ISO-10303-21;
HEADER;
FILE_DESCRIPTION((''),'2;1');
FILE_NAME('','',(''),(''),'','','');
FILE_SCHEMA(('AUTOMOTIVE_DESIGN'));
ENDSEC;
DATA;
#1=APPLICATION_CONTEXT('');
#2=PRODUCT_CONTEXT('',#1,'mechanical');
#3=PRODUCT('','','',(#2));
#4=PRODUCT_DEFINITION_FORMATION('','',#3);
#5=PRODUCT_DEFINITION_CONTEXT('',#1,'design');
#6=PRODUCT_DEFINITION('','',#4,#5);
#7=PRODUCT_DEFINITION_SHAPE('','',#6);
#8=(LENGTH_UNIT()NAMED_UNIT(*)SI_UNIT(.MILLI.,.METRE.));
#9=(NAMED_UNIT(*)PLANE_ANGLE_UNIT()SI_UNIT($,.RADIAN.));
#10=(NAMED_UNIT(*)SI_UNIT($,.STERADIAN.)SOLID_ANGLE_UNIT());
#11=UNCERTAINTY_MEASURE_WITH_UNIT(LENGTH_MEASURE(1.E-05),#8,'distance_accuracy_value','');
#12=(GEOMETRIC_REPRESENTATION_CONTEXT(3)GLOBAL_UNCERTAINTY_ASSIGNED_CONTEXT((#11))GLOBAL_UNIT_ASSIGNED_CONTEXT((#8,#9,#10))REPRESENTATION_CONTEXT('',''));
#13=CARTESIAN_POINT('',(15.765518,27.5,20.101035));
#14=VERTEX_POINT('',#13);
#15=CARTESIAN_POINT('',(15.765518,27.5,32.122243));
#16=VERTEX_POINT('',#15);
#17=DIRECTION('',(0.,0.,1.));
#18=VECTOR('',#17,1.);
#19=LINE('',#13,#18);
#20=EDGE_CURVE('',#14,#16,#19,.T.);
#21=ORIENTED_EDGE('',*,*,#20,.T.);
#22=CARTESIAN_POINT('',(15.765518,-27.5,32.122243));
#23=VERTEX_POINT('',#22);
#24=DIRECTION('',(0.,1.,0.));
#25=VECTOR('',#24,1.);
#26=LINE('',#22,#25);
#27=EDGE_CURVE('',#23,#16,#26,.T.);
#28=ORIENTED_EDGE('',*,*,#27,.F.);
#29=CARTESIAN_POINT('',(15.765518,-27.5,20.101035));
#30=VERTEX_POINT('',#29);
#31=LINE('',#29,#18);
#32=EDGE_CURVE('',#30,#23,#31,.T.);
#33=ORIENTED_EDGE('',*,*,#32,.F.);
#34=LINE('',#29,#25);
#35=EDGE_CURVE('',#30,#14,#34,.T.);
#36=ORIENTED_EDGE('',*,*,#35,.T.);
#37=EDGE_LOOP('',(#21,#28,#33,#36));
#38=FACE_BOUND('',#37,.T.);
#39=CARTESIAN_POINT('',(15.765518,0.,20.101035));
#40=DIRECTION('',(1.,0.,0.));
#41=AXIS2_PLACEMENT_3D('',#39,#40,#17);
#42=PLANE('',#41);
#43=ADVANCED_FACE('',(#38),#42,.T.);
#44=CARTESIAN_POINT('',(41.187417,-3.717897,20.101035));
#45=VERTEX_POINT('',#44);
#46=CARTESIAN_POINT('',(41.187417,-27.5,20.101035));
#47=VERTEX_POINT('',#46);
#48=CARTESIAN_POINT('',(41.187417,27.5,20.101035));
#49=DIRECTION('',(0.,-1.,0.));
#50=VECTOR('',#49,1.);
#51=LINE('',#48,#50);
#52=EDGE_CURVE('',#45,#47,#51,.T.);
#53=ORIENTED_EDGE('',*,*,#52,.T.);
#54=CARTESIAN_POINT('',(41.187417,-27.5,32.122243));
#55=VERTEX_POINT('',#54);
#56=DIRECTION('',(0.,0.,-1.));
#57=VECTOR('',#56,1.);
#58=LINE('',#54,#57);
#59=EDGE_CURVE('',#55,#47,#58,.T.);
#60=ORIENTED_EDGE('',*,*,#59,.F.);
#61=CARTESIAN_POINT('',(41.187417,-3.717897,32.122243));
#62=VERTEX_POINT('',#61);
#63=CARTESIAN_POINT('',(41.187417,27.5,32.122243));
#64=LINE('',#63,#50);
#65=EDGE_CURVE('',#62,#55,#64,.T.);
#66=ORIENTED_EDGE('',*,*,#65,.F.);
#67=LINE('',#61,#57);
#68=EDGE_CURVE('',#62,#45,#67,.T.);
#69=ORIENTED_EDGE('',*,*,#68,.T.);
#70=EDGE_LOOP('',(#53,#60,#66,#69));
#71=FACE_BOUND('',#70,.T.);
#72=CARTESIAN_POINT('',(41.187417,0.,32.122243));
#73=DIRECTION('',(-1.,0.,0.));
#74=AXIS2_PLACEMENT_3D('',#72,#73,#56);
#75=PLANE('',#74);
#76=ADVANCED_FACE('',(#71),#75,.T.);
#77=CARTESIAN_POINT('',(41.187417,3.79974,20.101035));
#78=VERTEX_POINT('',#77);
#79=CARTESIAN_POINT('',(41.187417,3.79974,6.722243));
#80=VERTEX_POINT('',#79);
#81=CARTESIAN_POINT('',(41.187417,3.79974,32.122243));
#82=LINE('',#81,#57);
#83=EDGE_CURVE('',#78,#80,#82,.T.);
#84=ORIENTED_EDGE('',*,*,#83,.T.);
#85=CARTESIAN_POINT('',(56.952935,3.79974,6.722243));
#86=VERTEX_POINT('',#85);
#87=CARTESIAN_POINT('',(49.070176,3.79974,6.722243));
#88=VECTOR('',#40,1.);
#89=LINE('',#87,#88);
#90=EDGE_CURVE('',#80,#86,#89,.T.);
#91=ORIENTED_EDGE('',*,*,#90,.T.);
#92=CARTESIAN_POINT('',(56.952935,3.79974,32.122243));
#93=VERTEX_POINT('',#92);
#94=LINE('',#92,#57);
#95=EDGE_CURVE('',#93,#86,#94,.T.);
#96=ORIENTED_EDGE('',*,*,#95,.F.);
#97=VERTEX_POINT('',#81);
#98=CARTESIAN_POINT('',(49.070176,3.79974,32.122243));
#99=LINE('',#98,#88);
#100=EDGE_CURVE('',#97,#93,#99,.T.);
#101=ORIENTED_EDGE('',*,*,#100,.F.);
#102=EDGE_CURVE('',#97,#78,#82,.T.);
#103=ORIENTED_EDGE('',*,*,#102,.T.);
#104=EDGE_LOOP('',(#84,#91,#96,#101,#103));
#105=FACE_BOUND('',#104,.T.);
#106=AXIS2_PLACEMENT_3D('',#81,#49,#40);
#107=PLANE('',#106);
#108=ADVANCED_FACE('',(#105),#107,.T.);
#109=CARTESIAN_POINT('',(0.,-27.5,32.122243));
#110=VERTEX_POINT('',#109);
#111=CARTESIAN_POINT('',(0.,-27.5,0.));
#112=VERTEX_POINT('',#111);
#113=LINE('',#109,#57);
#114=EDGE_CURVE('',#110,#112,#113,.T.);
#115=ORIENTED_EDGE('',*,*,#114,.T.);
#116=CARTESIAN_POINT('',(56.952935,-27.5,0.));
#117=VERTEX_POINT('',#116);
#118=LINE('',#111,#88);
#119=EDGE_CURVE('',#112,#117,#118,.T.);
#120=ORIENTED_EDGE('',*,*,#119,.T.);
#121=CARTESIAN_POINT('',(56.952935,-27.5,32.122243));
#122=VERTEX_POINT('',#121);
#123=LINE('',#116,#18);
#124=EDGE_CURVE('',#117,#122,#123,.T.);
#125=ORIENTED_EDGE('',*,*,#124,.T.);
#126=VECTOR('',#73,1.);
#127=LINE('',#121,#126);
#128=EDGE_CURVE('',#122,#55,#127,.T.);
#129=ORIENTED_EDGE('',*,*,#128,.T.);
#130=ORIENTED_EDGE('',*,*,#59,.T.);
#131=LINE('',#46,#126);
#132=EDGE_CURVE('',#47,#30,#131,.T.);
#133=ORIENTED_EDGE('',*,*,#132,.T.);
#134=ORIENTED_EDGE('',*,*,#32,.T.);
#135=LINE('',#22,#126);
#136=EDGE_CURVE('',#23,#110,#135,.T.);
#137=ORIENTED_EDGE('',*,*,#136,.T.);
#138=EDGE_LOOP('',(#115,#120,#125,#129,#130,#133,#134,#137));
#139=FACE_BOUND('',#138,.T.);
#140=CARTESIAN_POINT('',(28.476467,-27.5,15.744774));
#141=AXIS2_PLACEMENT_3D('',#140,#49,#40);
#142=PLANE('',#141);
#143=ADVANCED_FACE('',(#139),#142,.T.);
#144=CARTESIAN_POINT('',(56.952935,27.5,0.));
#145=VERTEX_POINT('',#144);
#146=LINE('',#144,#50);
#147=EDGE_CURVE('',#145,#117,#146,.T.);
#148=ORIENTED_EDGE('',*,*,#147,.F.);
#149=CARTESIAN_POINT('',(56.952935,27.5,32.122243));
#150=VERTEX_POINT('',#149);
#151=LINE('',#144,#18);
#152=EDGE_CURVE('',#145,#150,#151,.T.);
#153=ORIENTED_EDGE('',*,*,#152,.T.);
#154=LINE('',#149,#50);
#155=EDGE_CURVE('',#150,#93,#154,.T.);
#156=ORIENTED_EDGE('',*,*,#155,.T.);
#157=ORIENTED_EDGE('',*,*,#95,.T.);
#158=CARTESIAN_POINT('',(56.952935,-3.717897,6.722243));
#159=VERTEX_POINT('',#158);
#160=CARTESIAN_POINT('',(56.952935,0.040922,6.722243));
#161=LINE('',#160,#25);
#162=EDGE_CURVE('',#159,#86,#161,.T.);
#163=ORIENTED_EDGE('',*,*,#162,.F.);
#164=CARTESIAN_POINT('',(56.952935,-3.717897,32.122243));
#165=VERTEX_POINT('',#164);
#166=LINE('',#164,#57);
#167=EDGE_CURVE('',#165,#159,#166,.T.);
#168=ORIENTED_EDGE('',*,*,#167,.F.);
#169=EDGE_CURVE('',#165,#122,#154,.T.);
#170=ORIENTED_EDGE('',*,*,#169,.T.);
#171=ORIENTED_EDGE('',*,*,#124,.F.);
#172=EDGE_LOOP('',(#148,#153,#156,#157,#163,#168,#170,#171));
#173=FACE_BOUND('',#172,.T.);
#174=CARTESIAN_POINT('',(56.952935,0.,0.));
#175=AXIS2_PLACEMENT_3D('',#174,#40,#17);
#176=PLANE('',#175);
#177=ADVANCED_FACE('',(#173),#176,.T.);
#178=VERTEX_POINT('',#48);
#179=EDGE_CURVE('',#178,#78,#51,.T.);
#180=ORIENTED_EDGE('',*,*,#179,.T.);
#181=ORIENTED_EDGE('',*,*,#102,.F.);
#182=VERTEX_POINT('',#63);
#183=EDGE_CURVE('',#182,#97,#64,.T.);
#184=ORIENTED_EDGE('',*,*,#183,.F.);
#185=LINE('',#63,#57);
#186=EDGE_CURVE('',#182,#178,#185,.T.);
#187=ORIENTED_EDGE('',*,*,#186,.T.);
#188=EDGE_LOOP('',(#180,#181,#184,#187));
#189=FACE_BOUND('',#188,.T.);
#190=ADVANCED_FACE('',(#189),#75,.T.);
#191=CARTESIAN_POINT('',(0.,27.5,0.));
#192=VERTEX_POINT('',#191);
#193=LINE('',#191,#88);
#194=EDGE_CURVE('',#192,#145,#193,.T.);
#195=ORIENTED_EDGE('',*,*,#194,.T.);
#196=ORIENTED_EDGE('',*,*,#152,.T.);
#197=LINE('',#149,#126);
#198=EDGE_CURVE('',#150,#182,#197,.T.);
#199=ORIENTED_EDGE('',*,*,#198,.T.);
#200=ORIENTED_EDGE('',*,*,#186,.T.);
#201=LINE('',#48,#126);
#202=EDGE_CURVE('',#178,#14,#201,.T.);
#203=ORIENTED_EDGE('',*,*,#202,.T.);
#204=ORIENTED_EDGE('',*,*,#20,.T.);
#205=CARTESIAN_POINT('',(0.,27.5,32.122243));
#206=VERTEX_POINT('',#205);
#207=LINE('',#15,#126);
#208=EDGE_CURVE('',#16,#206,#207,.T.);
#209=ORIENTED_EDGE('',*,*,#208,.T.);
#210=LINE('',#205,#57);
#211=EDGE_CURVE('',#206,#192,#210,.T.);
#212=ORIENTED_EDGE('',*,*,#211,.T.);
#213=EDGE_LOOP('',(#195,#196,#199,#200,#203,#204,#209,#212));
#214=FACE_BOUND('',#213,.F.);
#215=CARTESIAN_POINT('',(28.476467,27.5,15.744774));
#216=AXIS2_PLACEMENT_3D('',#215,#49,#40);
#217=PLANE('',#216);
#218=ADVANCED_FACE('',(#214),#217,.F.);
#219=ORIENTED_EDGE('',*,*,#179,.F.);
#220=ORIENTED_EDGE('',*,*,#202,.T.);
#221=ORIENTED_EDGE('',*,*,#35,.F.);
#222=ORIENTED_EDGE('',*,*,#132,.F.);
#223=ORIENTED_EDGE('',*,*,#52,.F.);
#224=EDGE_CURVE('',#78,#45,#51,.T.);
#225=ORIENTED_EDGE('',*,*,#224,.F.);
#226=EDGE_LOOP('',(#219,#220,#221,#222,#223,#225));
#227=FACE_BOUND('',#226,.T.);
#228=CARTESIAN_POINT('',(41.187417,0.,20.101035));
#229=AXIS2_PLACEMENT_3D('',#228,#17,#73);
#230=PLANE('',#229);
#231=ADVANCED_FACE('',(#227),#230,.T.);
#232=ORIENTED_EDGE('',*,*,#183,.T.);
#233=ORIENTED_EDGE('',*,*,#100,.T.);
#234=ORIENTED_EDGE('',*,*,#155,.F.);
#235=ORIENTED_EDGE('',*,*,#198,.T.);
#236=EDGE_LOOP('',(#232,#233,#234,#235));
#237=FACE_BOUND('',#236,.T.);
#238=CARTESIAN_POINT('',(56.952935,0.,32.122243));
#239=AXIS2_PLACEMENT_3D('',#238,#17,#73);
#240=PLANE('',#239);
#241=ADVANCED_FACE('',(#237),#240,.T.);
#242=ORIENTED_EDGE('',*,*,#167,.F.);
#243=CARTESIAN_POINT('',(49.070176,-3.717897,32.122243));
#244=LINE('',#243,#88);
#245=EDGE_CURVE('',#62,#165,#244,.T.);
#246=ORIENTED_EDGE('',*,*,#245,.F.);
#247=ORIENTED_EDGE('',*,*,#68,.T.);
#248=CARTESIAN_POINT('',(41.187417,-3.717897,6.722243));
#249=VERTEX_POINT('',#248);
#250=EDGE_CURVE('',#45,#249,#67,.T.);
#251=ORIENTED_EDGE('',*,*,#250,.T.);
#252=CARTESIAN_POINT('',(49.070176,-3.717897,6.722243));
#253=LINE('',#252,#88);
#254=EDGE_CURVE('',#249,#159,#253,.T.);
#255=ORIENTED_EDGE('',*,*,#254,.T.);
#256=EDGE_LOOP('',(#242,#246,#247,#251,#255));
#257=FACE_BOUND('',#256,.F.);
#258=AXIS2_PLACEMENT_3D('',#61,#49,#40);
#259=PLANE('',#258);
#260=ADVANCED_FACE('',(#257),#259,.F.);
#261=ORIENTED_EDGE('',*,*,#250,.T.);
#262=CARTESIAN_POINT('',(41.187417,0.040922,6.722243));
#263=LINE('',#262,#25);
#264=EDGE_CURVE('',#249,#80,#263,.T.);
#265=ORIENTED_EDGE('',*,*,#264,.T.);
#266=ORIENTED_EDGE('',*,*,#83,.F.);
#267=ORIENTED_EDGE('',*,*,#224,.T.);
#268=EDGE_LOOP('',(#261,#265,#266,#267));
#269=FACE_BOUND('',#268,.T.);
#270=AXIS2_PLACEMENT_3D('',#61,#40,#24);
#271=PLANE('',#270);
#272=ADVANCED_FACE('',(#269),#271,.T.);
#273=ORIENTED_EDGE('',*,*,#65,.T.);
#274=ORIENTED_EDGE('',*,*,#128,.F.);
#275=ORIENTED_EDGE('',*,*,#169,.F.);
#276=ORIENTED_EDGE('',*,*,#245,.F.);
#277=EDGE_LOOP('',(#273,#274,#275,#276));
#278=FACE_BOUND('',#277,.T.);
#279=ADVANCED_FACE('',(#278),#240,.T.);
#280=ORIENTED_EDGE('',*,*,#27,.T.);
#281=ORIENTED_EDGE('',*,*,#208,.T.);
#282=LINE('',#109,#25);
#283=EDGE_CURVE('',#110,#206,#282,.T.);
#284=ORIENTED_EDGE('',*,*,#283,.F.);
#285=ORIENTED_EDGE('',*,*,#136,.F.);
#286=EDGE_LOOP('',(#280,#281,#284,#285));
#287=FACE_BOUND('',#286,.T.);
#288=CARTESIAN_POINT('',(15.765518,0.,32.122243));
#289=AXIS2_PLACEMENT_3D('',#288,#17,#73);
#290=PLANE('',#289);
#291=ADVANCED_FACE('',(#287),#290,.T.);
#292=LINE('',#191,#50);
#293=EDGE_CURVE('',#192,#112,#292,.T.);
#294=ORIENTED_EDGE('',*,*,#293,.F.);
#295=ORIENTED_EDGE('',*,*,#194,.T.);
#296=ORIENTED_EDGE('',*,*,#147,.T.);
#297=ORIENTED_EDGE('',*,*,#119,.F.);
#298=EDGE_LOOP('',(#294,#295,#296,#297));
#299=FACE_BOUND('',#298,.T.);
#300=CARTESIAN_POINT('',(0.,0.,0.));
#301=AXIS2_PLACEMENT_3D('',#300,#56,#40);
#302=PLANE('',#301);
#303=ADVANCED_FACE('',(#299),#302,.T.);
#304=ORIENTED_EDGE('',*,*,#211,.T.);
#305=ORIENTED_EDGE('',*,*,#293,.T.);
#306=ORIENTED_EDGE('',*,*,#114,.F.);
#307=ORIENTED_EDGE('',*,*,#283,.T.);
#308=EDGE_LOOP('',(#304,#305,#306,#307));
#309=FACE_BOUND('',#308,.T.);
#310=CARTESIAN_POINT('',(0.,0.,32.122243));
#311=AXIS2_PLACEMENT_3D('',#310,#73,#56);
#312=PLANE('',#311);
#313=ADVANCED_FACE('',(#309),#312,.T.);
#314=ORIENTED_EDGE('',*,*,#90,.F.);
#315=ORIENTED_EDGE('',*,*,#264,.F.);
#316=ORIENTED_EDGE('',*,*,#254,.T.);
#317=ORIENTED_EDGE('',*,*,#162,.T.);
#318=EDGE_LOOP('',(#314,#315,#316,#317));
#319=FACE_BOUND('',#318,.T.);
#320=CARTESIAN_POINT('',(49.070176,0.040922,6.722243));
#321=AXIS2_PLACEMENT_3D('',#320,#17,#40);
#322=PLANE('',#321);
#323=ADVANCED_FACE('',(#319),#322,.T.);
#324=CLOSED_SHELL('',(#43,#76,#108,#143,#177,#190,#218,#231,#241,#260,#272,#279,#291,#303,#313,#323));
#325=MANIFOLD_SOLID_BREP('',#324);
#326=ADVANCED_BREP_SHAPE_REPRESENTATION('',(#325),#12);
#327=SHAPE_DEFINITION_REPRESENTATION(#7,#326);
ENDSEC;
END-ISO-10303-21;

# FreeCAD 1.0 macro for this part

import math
import FreeCAD as App
import Part
import Sketcher

doc = App.newDocument("Part")
body = doc.addObject("PartDesign::Body", "Body")

# Sketch on XZ plane
sketch1 = body.newObject("Sketcher::SketchObject", "Sketch")
sketch1.AttachmentSupport = (doc.getObject("XZ_Plane"), [""])
sketch1.MapMode = "FlatFace"
sketch1.addGeometry(Part.LineSegment(App.Vector(-26.748247, -27.646495, 0), App.Vector(26.748247, -27.646495, 0)), False)
sketch1.addGeometry(Part.LineSegment(App.Vector(26.748247, -27.646495, 0), App.Vector(26.748247, 27.646495, 0)), False)
sketch1.addGeometry(Part.ArcOfCircle(Part.Circle(App.Vector(0, 27.646495, 0), App.Vector(0, 0, 1), 26.748247), math.radians(0), math.radians(180)), False)
sketch1.addGeometry(Part.LineSegment(App.Vector(-26.748247, 27.646495, 0), App.Vector(-26.748247, -27.646495, 0)), False)
sketch1.addGeometry(Part.Circle(App.Vector(0, 27.646495, 0), App.Vector(0, 0, 1), 9.415849), False)
sketch1.addConstraint(Sketcher.Constraint("Coincident", 0, 2, 1, 1))
sketch1.addConstraint(Sketcher.Constraint("Tangent", 1, 2, 2, 1))
sketch1.addConstraint(Sketcher.Constraint("Tangent", 2, 2, 3, 1))
sketch1.addConstraint(Sketcher.Constraint("Coincident", 3, 2, 0, 1))
sketch1.addConstraint(Sketcher.Constraint("Horizontal", 0))
sketch1.addConstraint(Sketcher.Constraint("Vertical", 1))
sketch1.addConstraint(Sketcher.Constraint("Vertical", 3))
sketch1.addConstraint(Sketcher.Constraint("Coincident", 4, 3, 2, 3))
sketch1.addConstraint(Sketcher.Constraint("Symmetric", 0, 2, 2, 2, -1, 1))
sketch1.addConstraint(Sketcher.Constraint("Diameter", 4, 18.831697))
sketch1.addConstraint(Sketcher.Constraint("Radius", 2, 26.748247))
sketch1.addConstraint(Sketcher.Constraint("DistanceY", 1, 1, 1, 2, 55.29299))
pad1 = body.newObject("PartDesign::Pad", "Pad")
pad1.Profile = sketch1
pad1.Length = 25.4
body2 = doc.addObject("PartDesign::Body", "Body001")

# Sketch on XZ plane
sketch2 = body2.newObject("Sketcher::SketchObject", "Sketch001")
sketch2.AttachmentSupport = (doc.getObject("XZ_Plane001"), [""])
sketch2.MapMode = "FlatFace"
sketch2.addGeometry(Part.LineSegment(App.Vector(0, 32.122243, 0), App.Vector(0, 0, 0)), False)
sketch2.addGeometry(Part.LineSegment(App.Vector(0, 0, 0), App.Vector(56.952935, 0, 0)), False)
sketch2.addGeometry(Part.LineSegment(App.Vector(56.952935, 0, 0), App.Vector(56.952935, 32.122243, 0)), False)
sketch2.addGeometry(Part.LineSegment(App.Vector(56.952935, 32.122243, 0), App.Vector(41.187417, 32.122243, 0)), False)
sketch2.addGeometry(Part.LineSegment(App.Vector(41.187417, 32.122243, 0), App.Vector(41.187417, 20.101035, 0)), False)
sketch2.addGeometry(Part.LineSegment(App.Vector(41.187417, 20.101035, 0), App.Vector(15.765518, 20.101035, 0)), False)
sketch2.addGeometry(Part.LineSegment(App.Vector(15.765518, 20.101035, 0), App.Vector(15.765518, 32.122243, 0)), False)
sketch2.addGeometry(Part.LineSegment(App.Vector(15.765518, 32.122243, 0), App.Vector(0, 32.122243, 0)), False)
sketch2.addConstraint(Sketcher.Constraint("Coincident", 0, 2, 1, 1))
sketch2.addConstraint(Sketcher.Constraint("Coincident", 1, 2, 2, 1))
sketch2.addConstraint(Sketcher.Constraint("Coincident", 2, 2, 3, 1))
sketch2.addConstraint(Sketcher.Constraint("Coincident", 3, 2, 4, 1))
sketch2.addConstraint(Sketcher.Constraint("Coincident", 4, 2, 5, 1))
sketch2.addConstraint(Sketcher.Constraint("Coincident", 5, 2, 6, 1))
sketch2.addConstraint(Sketcher.Constraint("Coincident", 6, 2, 7, 1))
sketch2.addConstraint(Sketcher.Constraint("Coincident", 7, 2, 0, 1))
sketch2.addConstraint(Sketcher.Constraint("Vertical", 0))
sketch2.addConstraint(Sketcher.Constraint("Horizontal", 1))
sketch2.addConstraint(Sketcher.Constraint("Vertical", 2))
sketch2.addConstraint(Sketcher.Constraint("Horizontal", 3))
sketch2.addConstraint(Sketcher.Constraint("Vertical", 4))
sketch2.addConstraint(Sketcher.Constraint("Horizontal", 5))
sketch2.addConstraint(Sketcher.Constraint("Vertical", 6))
sketch2.addConstraint(Sketcher.Constraint("Horizontal", 7))
sketch2.addConstraint(Sketcher.Constraint("Coincident", 0, 2, -1, 1))
sketch2.addConstraint(Sketcher.Constraint("Horizontal", 3, 2, 6, 2))
sketch2.addConstraint(Sketcher.Constraint("Equal", 3, 7))
sketch2.addConstraint(Sketcher.Constraint("DistanceX", 5, 2, 5, 1, 25.421899))
sketch2.addConstraint(Sketcher.Constraint("DistanceY", 4, 2, 4, 1, 12.021208))
sketch2.addConstraint(Sketcher.Constraint("DistanceX", 1, 1, 1, 2, 56.952935))
sketch2.addConstraint(Sketcher.Constraint("DistanceY", 0, 2, 0, 1, 32.122243))
pad2 = body2.newObject("PartDesign::Pad", "Pad001")
pad2.Profile = sketch2
pad2.Length = 55
pad2.Midplane = True

# Sketch on XY plane
sketch3 = body2.newObject("Sketcher::SketchObject", "Sketch002")
sketch3.AttachmentSupport = (doc.getObject("XY_Plane001"), [""])
sketch3.MapMode = "FlatFace"
sketch3.AttachmentOffset = App.Placement(App.Vector(0, 0, 32.122243), App.Rotation())
sketch3.addGeometry(Part.LineSegment(App.Vector(41.187417, 3.79974, 0), App.Vector(41.187417, -3.717897, 0)), False)
sketch3.addGeometry(Part.LineSegment(App.Vector(41.187417, -3.717897, 0), App.Vector(56.952935, -3.717897, 0)), False)
sketch3.addGeometry(Part.LineSegment(App.Vector(56.952935, -3.717897, 0), App.Vector(56.952935, 3.79974, 0)), False)
sketch3.addGeometry(Part.LineSegment(App.Vector(56.952935, 3.79974, 0), App.Vector(41.187417, 3.79974, 0)), False)
sketch3.addConstraint(Sketcher.Constraint("Coincident", 0, 2, 1, 1))
sketch3.addConstraint(Sketcher.Constraint("Coincident", 1, 2, 2, 1))
sketch3.addConstraint(Sketcher.Constraint("Coincident", 2, 2, 3, 1))
sketch3.addConstraint(Sketcher.Constraint("Coincident", 3, 2, 0, 1))
sketch3.addConstraint(Sketcher.Constraint("Vertical", 0))
sketch3.addConstraint(Sketcher.Constraint("Horizontal", 1))
sketch3.addConstraint(Sketcher.Constraint("Vertical", 2))
sketch3.addConstraint(Sketcher.Constraint("Horizontal", 3))
sketch3.addConstraint(Sketcher.Constraint("DistanceX", 1, 1, 1, 2, 15.765518))
sketch3.addConstraint(Sketcher.Constraint("DistanceY", 0, 2, 0, 1, 7.517637))
sketch3.addConstraint(Sketcher.Constraint("DistanceY", -1, 1, 2, 2, 3.79974))
sketch3.addConstraint(Sketcher.Constraint("DistanceX", -1, 1, 0, 2, 41.187417))
pocket1 = body2.newObject("PartDesign::Pocket", "Pocket")
pocket1.Profile = sketch3
pocket1.Length = 25.4
body.Visibility = False

doc.recompute()
